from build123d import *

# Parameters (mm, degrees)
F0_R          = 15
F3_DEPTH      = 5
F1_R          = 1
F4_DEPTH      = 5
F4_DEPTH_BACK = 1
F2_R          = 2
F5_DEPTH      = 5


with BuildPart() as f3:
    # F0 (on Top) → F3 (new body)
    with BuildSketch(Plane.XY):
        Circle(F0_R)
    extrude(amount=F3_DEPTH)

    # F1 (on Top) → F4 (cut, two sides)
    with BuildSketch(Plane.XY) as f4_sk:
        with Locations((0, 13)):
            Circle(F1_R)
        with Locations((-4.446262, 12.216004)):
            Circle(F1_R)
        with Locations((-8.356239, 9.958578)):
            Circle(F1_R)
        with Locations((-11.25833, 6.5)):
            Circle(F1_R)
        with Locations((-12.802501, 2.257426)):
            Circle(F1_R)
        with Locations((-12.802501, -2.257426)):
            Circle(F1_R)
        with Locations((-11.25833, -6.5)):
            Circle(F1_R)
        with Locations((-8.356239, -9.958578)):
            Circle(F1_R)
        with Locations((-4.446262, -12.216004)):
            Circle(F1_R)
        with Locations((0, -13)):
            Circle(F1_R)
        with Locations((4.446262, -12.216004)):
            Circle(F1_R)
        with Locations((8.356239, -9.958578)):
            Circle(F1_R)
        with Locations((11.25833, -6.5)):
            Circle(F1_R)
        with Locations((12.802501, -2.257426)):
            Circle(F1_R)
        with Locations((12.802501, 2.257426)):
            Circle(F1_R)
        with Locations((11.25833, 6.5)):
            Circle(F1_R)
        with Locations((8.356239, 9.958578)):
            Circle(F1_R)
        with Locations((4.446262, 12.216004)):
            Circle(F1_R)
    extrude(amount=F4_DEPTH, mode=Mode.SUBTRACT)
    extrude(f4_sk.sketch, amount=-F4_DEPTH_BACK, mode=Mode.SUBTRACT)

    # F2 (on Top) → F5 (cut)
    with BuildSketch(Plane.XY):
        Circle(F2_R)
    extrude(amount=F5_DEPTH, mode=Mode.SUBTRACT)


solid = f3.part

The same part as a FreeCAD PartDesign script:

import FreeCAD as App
import Part
import Sketcher
from FreeCAD import Vector
Q = App.Units.Quantity

doc = App.newDocument("Part")
body = doc.addObject("PartDesign::Body", "Body")

sketch1 = doc.addObject("Sketcher::SketchObject", "Sketch")
body.addObject(sketch1)
sketch1.AttachmentSupport = (doc.XY_Plane, [""])
sketch1.MapMode = "FlatFace"
sketch1.addGeometry(Part.Circle(Vector(0, 0, 0), Vector(0, 0, 1), 15), False)
sketch1.addConstraint(Sketcher.Constraint("Coincident", 0, 3, -1, 1))
sketch1.addConstraint(Sketcher.Constraint("Diameter", 0, Q("30 mm")))
pad1 = doc.addObject("PartDesign::Pad", "Pad")
body.addObject(pad1)
pad1.Profile = sketch1
pad1.Length = 5

sketch2 = doc.addObject("Sketcher::SketchObject", "Sketch001")
body.addObject(sketch2)
sketch2.AttachmentSupport = (doc.XY_Plane, [""])
sketch2.MapMode = "FlatFace"
sketch2.addGeometry(Part.Circle(Vector(0, 13, 0), Vector(0, 0, 1), 1), False)
sketch2.addGeometry(Part.Circle(Vector(-4.4, 12.2, 0), Vector(0, 0, 1), 1), False)
sketch2.addGeometry(Part.Circle(Vector(-8.4, 10, 0), Vector(0, 0, 1), 1), False)
sketch2.addGeometry(Part.Circle(Vector(-11.3, 6.5, 0), Vector(0, 0, 1), 1), False)
sketch2.addGeometry(Part.Circle(Vector(-12.8, 2.3, 0), Vector(0, 0, 1), 1), False)
sketch2.addGeometry(Part.Circle(Vector(-12.8, -2.3, 0), Vector(0, 0, 1), 1), False)
sketch2.addGeometry(Part.Circle(Vector(-11.3, -6.5, 0), Vector(0, 0, 1), 1), False)
sketch2.addGeometry(Part.Circle(Vector(-8.4, -10, 0), Vector(0, 0, 1), 1), False)
sketch2.addGeometry(Part.Circle(Vector(-4.4, -12.2, 0), Vector(0, 0, 1), 1), False)
sketch2.addGeometry(Part.Circle(Vector(0, -13, 0), Vector(0, 0, 1), 1), False)
sketch2.addGeometry(Part.Circle(Vector(4.4, -12.2, 0), Vector(0, 0, 1), 1), False)
sketch2.addGeometry(Part.Circle(Vector(8.4, -10, 0), Vector(0, 0, 1), 1), False)
sketch2.addGeometry(Part.Circle(Vector(11.3, -6.5, 0), Vector(0, 0, 1), 1), False)
sketch2.addGeometry(Part.Circle(Vector(12.8, -2.3, 0), Vector(0, 0, 1), 1), False)
sketch2.addGeometry(Part.Circle(Vector(12.8, 2.3, 0), Vector(0, 0, 1), 1), False)
sketch2.addGeometry(Part.Circle(Vector(11.3, 6.5, 0), Vector(0, 0, 1), 1), False)
sketch2.addGeometry(Part.Circle(Vector(8.4, 10, 0), Vector(0, 0, 1), 1), False)
sketch2.addGeometry(Part.Circle(Vector(4.4, 12.2, 0), Vector(0, 0, 1), 1), False)
sketch2.addConstraint(Sketcher.Constraint("Equal", 0, 1))
sketch2.addConstraint(Sketcher.Constraint("Equal", 1, 2))
sketch2.addConstraint(Sketcher.Constraint("Equal", 2, 3))
sketch2.addConstraint(Sketcher.Constraint("Equal", 3, 4))
sketch2.addConstraint(Sketcher.Constraint("Equal", 4, 5))
sketch2.addConstraint(Sketcher.Constraint("Equal", 5, 6))
sketch2.addConstraint(Sketcher.Constraint("Equal", 6, 7))
sketch2.addConstraint(Sketcher.Constraint("Equal", 7, 8))
sketch2.addConstraint(Sketcher.Constraint("Equal", 8, 9))
sketch2.addConstraint(Sketcher.Constraint("Equal", 9, 10))
sketch2.addConstraint(Sketcher.Constraint("Equal", 10, 11))
sketch2.addConstraint(Sketcher.Constraint("Equal", 11, 12))
sketch2.addConstraint(Sketcher.Constraint("Equal", 12, 13))
sketch2.addConstraint(Sketcher.Constraint("Equal", 13, 14))
sketch2.addConstraint(Sketcher.Constraint("Equal", 14, 15))
sketch2.addConstraint(Sketcher.Constraint("Equal", 15, 16))
sketch2.addConstraint(Sketcher.Constraint("Equal", 16, 17))
sketch2.addConstraint(Sketcher.Constraint("Symmetric", 0, 3, 9, 3, -1, 1))
sketch2.addConstraint(Sketcher.Constraint("Symmetric", 1, 3, 10, 3, -1, 1))
sketch2.addConstraint(Sketcher.Constraint("Symmetric", 2, 3, 11, 3, -1, 1))
sketch2.addConstraint(Sketcher.Constraint("Symmetric", 3, 3, 12, 3, -1, 1))
sketch2.addConstraint(Sketcher.Constraint("Symmetric", 4, 3, 13, 3, -1, 1))
sketch2.addConstraint(Sketcher.Constraint("Symmetric", 5, 3, 14, 3, -1, 1))
sketch2.addConstraint(Sketcher.Constraint("Symmetric", 6, 3, 15, 3, -1, 1))
sketch2.addConstraint(Sketcher.Constraint("Symmetric", 7, 3, 16, 3, -1, 1))
sketch2.addConstraint(Sketcher.Constraint("Symmetric", 8, 3, 17, 3, -1, 1))
sketch2.addConstraint(Sketcher.Constraint("Symmetric", 8, 3, 10, 3, -2))
sketch2.addConstraint(Sketcher.Constraint("Symmetric", 7, 3, 11, 3, -2))
sketch2.addConstraint(Sketcher.Constraint("Symmetric", 6, 3, 12, 3, -2))
sketch2.addConstraint(Sketcher.Constraint("Symmetric", 5, 3, 13, 3, -2))
sketch2.addConstraint(Sketcher.Constraint("PointOnObject", 0, 3, -2))
sketch2.addConstraint(Sketcher.Constraint("Diameter", 0, Q("2 mm")))
sketch2.addConstraint(Sketcher.Constraint("DistanceY", -1, 1, 0, 3, Q("13 mm")))
sketch2.addConstraint(Sketcher.Constraint("DistanceY", 6, 3, 3, 3, Q("13 mm")))
sketch2.addConstraint(Sketcher.Constraint("DistanceX", 4, 3, -1, 1, Q("12.802501 mm")))
sketch2.addConstraint(Sketcher.Constraint("DistanceX", 7, 3, 10, 3, Q("12.802501 mm")))
sketch2.addConstraint(Sketcher.Constraint("DistanceX", 2, 3, -1, 1, Q("8.356239 mm")))
sketch2.addConstraint(Sketcher.Constraint("DistanceX", 3, 3, -1, 1, Q("11.25833 mm")))
sketch2.addConstraint(Sketcher.Constraint("DistanceY", 4, 3, 2, 3, Q("7.701152 mm")))
sketch2.addConstraint(Sketcher.Constraint("DistanceY", 5, 3, 1, 3, Q("14.47343 mm")))
sketch2.addConstraint(Sketcher.Constraint("DistanceY", -1, 1, 1, 3, Q("12.216004 mm")))
pocket1 = doc.addObject("PartDesign::Pocket", "Pocket")
body.addObject(pocket1)
pocket1.Profile = sketch2
pocket1.Type = "ThroughAll"
pocket1.Midplane = True

sketch3 = doc.addObject("Sketcher::SketchObject", "Sketch002")
body.addObject(sketch3)
sketch3.AttachmentSupport = (doc.XY_Plane, [""])
sketch3.MapMode = "FlatFace"
sketch3.addGeometry(Part.Circle(Vector(0, 0, 0), Vector(0, 0, 1), 2), False)
sketch3.addConstraint(Sketcher.Constraint("Coincident", 0, 3, -1, 1))
sketch3.addConstraint(Sketcher.Constraint("Diameter", 0, Q("4 mm")))
pocket2 = doc.addObject("PartDesign::Pocket", "Pocket001")
body.addObject(pocket2)
pocket2.Profile = sketch3
pocket2.Length = 5
pocket2.Reversed = True

doc.recompute()
